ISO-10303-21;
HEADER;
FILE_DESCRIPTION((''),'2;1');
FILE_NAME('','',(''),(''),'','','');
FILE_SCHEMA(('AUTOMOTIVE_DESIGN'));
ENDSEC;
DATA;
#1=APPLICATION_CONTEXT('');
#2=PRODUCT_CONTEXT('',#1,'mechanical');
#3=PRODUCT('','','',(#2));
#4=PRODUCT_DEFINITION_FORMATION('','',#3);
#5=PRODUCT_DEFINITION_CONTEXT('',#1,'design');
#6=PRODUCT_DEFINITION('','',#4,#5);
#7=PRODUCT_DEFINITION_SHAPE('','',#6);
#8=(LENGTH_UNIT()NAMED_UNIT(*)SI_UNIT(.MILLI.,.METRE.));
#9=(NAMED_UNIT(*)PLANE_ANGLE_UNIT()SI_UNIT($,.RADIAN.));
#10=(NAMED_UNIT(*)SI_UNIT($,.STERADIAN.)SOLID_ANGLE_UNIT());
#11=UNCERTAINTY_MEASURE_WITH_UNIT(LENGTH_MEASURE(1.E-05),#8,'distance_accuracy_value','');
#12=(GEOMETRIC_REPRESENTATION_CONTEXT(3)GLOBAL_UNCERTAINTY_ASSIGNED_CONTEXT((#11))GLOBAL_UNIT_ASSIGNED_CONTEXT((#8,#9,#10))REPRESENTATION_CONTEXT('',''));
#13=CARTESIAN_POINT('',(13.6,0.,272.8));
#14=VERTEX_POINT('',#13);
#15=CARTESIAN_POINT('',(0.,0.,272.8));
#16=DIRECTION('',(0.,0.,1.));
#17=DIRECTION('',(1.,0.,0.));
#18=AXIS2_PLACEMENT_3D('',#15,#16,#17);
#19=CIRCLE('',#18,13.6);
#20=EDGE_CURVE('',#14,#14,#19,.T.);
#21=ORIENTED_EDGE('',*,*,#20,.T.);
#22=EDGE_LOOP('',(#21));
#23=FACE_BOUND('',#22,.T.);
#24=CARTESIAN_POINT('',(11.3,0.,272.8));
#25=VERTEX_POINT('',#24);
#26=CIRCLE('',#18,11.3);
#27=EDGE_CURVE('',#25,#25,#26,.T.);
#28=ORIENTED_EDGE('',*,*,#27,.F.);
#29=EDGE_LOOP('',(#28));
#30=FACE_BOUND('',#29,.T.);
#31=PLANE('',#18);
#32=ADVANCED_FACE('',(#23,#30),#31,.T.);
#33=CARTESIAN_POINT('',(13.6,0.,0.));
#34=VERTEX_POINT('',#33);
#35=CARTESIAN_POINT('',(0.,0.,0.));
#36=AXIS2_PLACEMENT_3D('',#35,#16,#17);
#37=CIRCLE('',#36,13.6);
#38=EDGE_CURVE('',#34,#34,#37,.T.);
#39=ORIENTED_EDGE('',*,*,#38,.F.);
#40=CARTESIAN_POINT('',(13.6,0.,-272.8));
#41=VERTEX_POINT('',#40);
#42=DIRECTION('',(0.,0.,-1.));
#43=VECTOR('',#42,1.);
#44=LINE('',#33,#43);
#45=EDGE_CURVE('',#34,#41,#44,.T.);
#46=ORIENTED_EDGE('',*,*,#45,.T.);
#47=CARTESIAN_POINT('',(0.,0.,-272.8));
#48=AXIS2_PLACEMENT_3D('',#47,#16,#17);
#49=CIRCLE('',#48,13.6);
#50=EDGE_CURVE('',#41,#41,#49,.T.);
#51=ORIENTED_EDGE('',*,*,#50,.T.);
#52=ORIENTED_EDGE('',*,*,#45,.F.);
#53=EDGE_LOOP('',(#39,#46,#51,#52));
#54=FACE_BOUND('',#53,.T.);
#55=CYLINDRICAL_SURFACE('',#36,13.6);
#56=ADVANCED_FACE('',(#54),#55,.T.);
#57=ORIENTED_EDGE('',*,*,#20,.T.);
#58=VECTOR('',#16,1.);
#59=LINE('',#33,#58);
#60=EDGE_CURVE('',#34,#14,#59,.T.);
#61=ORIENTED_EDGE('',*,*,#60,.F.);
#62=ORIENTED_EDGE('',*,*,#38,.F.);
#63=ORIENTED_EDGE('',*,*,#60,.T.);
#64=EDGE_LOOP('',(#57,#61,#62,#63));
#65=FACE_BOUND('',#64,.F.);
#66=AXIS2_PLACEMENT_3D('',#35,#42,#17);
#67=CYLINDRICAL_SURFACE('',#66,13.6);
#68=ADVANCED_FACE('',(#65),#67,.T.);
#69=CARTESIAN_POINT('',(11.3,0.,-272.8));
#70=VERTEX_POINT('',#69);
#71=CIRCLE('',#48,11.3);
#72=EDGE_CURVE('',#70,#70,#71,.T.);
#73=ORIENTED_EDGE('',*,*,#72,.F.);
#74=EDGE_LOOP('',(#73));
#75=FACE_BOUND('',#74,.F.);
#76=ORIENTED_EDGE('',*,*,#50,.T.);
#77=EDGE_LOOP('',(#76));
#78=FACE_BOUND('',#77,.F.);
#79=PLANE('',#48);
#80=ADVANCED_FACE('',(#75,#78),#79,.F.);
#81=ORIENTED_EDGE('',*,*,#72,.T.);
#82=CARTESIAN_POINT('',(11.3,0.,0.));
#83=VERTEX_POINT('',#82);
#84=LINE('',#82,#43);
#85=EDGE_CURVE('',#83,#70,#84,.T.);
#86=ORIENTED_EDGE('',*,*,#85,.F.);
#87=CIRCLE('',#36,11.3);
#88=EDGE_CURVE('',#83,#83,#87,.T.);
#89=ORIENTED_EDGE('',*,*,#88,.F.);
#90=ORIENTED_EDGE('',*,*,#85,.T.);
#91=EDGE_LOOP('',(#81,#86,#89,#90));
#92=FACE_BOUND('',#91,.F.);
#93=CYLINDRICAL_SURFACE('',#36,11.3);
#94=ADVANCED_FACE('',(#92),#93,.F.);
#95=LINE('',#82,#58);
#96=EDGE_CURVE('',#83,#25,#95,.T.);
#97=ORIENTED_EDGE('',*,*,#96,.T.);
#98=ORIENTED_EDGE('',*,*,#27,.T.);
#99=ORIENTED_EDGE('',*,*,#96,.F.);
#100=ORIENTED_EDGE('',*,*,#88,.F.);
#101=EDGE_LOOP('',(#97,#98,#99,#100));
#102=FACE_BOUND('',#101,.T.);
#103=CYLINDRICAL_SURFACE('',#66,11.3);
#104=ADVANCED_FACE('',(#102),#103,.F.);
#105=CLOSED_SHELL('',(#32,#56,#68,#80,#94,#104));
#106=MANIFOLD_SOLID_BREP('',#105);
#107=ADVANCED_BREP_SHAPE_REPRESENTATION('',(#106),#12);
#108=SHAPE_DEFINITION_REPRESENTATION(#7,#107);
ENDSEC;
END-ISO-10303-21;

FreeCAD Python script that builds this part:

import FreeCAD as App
import Part
import Sketcher

doc = App.newDocument("Part")
body = doc.addObject("PartDesign::Body", "Body")

# Sketch on XY plane
sketch1 = body.newObject("Sketcher::SketchObject", "Sketch")
sketch1.AttachmentSupport = (doc.getObject("XY_Plane"), [""])
sketch1.MapMode = "FlatFace"
sketch1.addGeometry(Part.Circle(App.Vector(0, 0, 0), App.Vector(0, 0, 1), 13.6), False)
sketch1.addGeometry(Part.Circle(App.Vector(0, 0, 0), App.Vector(0, 0, 1), 11.3), False)
sketch1.addConstraint(Sketcher.Constraint("Coincident", 0, 3, -1, 1))
sketch1.addConstraint(Sketcher.Constraint("Coincident", 1, 3, -1, 1))
sketch1.addConstraint(Sketcher.Constraint("Diameter", 0, 27.2))
sketch1.addConstraint(Sketcher.Constraint("Diameter", 1, 22.6))
pad1 = body.newObject("PartDesign::Pad", "Pad")
pad1.Profile = sketch1
pad1.Length = 545.6
pad1.Midplane = True

doc.recompute()
